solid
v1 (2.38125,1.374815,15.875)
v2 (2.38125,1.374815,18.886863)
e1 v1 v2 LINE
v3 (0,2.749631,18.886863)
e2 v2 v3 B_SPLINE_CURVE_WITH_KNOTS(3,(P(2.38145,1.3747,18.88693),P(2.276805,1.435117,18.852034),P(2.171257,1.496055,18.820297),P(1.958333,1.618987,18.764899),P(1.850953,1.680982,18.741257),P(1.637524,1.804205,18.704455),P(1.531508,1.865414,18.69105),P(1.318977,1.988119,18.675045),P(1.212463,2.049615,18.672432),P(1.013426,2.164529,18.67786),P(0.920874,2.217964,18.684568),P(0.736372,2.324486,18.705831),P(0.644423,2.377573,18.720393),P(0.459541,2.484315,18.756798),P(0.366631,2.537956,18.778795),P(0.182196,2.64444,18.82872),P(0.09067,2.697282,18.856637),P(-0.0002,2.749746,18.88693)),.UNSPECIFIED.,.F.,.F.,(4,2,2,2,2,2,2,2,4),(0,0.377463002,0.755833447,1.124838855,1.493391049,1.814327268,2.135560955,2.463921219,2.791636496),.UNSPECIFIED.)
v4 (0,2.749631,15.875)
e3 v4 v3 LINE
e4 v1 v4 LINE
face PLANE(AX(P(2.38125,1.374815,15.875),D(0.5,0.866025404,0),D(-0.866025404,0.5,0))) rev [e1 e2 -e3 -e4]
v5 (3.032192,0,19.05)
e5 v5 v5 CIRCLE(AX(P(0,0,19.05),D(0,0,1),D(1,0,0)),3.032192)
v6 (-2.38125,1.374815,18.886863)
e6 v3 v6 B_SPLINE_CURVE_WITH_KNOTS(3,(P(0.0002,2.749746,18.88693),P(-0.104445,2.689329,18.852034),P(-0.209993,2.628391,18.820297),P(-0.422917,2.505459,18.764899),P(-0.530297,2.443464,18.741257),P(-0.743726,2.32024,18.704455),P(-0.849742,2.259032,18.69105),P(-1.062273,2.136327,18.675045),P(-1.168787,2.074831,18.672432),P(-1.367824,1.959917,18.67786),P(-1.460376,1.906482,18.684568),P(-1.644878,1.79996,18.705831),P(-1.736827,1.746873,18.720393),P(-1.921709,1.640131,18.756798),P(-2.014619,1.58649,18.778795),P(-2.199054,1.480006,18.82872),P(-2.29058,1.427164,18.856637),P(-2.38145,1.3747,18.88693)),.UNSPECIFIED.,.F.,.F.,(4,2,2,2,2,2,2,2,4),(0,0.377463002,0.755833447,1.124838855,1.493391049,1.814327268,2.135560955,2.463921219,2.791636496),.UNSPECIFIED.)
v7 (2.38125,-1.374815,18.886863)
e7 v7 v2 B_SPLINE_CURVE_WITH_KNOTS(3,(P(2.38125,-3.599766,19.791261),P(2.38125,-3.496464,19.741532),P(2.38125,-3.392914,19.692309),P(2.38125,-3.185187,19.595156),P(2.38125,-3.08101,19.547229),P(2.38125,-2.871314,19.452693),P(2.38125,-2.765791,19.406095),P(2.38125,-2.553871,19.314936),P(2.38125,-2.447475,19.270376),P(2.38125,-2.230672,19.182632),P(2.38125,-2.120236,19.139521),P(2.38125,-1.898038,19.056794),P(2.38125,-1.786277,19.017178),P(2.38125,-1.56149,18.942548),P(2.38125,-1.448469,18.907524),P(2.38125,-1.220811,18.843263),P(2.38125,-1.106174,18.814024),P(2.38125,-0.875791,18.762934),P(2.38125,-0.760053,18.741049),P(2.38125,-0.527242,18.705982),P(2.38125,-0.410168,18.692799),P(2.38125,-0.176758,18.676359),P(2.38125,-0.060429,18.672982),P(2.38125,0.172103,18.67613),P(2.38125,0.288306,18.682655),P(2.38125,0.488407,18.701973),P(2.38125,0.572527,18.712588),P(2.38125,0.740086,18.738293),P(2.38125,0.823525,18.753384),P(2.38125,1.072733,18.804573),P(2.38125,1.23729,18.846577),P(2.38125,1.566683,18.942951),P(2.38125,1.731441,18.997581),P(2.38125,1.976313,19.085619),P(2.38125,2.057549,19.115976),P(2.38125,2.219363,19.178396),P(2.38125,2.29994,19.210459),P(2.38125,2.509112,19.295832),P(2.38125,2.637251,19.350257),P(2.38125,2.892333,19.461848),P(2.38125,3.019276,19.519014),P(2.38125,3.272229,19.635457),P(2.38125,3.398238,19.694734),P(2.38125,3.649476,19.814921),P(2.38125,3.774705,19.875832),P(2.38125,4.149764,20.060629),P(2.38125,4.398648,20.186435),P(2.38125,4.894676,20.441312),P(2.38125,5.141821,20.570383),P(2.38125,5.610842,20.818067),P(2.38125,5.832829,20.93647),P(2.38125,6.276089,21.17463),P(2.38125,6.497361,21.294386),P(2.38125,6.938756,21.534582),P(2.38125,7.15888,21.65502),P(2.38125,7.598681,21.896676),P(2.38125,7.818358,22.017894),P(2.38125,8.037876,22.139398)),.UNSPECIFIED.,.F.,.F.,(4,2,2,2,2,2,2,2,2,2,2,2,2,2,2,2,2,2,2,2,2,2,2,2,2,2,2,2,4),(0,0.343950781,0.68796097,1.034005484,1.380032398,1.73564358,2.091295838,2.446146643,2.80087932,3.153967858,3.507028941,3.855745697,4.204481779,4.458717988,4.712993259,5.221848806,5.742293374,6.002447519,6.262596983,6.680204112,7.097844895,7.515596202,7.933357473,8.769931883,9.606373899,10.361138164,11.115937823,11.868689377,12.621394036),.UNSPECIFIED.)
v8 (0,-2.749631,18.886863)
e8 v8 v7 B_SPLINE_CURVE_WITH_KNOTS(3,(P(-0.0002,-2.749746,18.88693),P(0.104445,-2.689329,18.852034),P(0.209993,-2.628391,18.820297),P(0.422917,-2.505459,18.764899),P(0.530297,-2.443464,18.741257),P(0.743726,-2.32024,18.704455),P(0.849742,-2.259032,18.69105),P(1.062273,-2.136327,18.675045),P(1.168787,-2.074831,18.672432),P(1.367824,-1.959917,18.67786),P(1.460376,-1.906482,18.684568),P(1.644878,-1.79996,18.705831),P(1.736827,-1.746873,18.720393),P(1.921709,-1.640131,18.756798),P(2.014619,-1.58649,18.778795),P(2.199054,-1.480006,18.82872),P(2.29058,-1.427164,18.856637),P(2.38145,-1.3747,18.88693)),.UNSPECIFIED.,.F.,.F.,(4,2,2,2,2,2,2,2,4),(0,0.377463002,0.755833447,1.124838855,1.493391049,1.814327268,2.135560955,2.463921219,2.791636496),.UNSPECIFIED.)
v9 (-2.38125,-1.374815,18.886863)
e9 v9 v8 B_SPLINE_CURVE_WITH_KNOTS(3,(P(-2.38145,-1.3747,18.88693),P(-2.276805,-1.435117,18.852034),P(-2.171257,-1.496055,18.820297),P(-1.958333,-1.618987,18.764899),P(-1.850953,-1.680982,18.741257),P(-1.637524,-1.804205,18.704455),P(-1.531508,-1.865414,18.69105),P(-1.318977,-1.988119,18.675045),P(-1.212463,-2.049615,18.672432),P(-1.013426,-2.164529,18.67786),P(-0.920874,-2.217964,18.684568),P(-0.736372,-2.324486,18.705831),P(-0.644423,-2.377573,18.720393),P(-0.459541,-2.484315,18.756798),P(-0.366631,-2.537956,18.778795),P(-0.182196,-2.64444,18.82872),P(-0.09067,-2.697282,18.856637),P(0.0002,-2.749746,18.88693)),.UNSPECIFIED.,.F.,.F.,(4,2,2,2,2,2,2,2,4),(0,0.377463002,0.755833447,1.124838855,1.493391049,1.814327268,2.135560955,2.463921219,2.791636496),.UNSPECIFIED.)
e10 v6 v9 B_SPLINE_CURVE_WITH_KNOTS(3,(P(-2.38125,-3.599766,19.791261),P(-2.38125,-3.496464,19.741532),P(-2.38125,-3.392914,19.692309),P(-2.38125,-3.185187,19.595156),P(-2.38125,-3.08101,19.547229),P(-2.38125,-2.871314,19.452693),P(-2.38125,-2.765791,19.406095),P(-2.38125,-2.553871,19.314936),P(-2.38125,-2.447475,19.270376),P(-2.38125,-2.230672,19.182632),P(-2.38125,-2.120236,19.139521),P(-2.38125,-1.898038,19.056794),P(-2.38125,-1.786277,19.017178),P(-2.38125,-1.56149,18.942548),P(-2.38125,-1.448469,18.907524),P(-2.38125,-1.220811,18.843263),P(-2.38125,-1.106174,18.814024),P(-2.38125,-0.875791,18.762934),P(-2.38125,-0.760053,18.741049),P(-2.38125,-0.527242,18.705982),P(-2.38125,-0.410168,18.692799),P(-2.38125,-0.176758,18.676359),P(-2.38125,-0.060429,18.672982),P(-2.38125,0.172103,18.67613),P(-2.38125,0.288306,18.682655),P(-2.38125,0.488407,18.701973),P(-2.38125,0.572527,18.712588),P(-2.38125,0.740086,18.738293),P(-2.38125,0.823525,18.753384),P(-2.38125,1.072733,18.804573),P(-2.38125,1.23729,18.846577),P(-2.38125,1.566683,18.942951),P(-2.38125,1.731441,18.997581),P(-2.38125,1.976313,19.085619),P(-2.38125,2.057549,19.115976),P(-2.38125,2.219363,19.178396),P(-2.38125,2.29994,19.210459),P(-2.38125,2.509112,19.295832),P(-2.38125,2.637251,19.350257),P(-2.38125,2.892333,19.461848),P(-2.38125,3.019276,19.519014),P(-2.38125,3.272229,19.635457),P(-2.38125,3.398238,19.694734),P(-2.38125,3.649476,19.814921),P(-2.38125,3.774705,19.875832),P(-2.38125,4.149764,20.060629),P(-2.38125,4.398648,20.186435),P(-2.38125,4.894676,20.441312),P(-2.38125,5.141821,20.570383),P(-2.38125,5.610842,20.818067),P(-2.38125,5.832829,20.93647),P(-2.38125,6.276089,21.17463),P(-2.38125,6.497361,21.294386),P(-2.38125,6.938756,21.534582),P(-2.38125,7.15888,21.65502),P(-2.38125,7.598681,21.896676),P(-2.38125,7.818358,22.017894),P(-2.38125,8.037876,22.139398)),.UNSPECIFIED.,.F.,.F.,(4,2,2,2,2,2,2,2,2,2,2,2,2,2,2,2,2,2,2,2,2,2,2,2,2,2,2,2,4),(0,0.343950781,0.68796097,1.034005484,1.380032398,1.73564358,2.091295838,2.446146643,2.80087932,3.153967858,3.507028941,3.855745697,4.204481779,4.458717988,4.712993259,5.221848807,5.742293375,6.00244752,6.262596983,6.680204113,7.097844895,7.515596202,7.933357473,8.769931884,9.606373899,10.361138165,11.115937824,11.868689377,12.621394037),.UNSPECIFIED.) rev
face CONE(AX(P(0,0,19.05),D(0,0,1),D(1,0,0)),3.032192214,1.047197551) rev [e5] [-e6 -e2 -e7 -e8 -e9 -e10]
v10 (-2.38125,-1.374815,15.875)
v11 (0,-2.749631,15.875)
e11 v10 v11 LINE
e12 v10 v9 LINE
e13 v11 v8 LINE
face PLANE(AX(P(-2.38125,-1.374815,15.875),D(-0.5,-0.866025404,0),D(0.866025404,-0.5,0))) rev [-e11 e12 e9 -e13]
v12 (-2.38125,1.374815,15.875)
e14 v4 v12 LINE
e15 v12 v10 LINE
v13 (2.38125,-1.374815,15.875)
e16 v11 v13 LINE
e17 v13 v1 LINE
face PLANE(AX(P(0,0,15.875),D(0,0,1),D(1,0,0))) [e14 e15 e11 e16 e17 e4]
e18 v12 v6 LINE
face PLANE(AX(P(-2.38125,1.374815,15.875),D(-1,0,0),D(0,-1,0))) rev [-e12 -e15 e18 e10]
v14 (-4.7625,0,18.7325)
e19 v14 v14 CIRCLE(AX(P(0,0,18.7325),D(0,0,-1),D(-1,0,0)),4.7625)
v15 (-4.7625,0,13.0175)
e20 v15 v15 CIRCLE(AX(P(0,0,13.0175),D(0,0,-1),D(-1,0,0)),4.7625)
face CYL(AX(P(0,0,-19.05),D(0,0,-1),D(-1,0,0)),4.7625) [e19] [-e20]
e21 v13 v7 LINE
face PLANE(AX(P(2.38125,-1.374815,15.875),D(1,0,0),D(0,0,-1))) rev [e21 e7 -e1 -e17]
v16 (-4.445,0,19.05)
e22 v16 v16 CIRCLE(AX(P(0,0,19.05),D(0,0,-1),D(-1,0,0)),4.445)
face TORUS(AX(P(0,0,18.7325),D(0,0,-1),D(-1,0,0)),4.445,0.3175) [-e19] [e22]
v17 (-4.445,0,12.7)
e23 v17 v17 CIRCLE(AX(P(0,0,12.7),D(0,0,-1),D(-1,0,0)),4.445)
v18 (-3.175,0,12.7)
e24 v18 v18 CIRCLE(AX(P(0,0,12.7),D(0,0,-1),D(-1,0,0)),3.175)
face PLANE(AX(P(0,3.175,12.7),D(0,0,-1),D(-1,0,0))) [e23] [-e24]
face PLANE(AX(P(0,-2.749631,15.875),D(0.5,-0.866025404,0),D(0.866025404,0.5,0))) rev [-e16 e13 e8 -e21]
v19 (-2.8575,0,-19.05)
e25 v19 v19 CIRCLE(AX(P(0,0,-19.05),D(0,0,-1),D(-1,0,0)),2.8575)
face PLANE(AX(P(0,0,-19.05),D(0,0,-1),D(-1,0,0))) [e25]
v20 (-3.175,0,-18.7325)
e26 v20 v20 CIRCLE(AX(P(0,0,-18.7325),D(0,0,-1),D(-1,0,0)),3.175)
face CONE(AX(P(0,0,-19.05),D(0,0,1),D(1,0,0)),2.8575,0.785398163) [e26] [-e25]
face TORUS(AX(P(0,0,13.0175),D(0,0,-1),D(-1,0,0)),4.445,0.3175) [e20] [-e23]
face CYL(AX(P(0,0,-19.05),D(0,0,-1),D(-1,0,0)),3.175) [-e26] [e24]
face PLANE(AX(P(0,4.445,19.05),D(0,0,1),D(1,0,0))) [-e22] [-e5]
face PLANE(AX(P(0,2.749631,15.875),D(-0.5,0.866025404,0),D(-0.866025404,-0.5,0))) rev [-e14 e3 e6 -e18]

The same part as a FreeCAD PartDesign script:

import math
import FreeCAD as App
import Part
import Sketcher
Q = App.Units.Quantity

doc = App.newDocument("Part")
body = doc.addObject("PartDesign::Body", "Body")

# Sketch on YZ plane
sketch1 = doc.addObject("Sketcher::SketchObject", "Sketch")
body.addObject(sketch1)
sketch1.AttachmentSupport = (doc.YZ_Plane, [""])
sketch1.MapMode = "FlatFace"
sketch1.addGeometry([
    Part.LineSegment(App.Vector(0, -19.05, 0), App.Vector(2.8575, -19.05, 0)),  # 0
    Part.LineSegment(App.Vector(2.8575, -19.05, 0), App.Vector(3.175, -18.7325, 0)),  # 1
    Part.LineSegment(App.Vector(3.175, -18.7325, 0), App.Vector(3.175, 12.7, 0)),  # 2
    Part.LineSegment(App.Vector(3.175, 12.7, 0), App.Vector(4.445, 12.7, 0)),  # 3
    Part.ArcOfCircle(Part.Circle(App.Vector(4.445, 13.0175, 0), App.Vector(0, 0, 1), 0.3175), math.radians(-90), math.radians(0)),  # 4
    Part.LineSegment(App.Vector(4.7625, 13.0175, 0), App.Vector(4.7625, 18.7325, 0)),  # 5
    Part.ArcOfCircle(Part.Circle(App.Vector(4.445, 18.7325, 0), App.Vector(0, 0, 1), 0.3175), math.radians(0), math.radians(90)),  # 6
    Part.LineSegment(App.Vector(4.445, 19.05, 0), App.Vector(0, 19.05, 0)),  # 7
    Part.LineSegment(App.Vector(0, 19.05, 0), App.Vector(0, -19.05, 0)),  # 8
], False)
sketch1.addConstraint([
    Sketcher.Constraint("Coincident", 0, 2, 1, 1),
    Sketcher.Constraint("Coincident", 1, 2, 2, 1),
    Sketcher.Constraint("Coincident", 2, 2, 3, 1),
    Sketcher.Constraint("Tangent", 3, 2, 4, 1),
    Sketcher.Constraint("Tangent", 4, 2, 5, 1),
    Sketcher.Constraint("Tangent", 5, 2, 6, 1),
    Sketcher.Constraint("Tangent", 6, 2, 7, 1),
    Sketcher.Constraint("Coincident", 7, 2, 8, 1),
    Sketcher.Constraint("Coincident", 8, 2, 0, 1),
    Sketcher.Constraint("Horizontal", 0),
    Sketcher.Constraint("Vertical", 2),
    Sketcher.Constraint("Horizontal", 3),
    Sketcher.Constraint("Vertical", 5),
    Sketcher.Constraint("Horizontal", 7),
    Sketcher.Constraint("Vertical", 8),
    Sketcher.Constraint("Equal", 4, 6),
    Sketcher.Constraint("Symmetric", 7, 2, 8, 2, -1, 1),
    Sketcher.Constraint("DistanceY", 8, 2, 8, 1, Q("1.5 in")),
    Sketcher.Constraint("Angle", 1, Q("45 deg")),
    Sketcher.Constraint("DistanceX", 3, 1, 3, 2, Q("0.05 in")),
    Sketcher.Constraint("DistanceY", -1, 1, 2, 2, Q("0.5 in")),
    Sketcher.Constraint("Radius", 4, Q("0.0125 in")),
    Sketcher.Constraint("DistanceX", 7, 2, 7, 1, Q("0.175 in")),
    Sketcher.Constraint("DistanceY", 1, 2, 4, 3, Q("1.25 in")),
])
revolution = doc.addObject("PartDesign::Revolution", "Revolution")
body.addObject(revolution)
revolution.Profile = sketch1
revolution.ReferenceAxis = (sketch1, ["V_Axis"])
revolution.Angle = 360

# Sketch on XY plane
sketch2 = doc.addObject("Sketcher::SketchObject", "Sketch001")
body.addObject(sketch2)
sketch2.AttachmentSupport = (doc.XY_Plane, [""])
sketch2.MapMode = "FlatFace"
sketch2.AttachmentOffset = App.Placement(App.Vector(0, 0, 0.75 * 25.4), App.Rotation())
sketch2.addGeometry([
    Part.LineSegment(App.Vector(-2.38125, 1.374815, 0), App.Vector(-2.38125, -1.374815, 0)),  # 0
    Part.LineSegment(App.Vector(-2.38125, -1.374815, 0), App.Vector(0, -2.749631, 0)),  # 1
    Part.LineSegment(App.Vector(0, -2.749631, 0), App.Vector(2.38125, -1.374815, 0)),  # 2
    Part.LineSegment(App.Vector(2.38125, -1.374815, 0), App.Vector(2.38125, 1.374815, 0)),  # 3
    Part.LineSegment(App.Vector(2.38125, 1.374815, 0), App.Vector(0, 2.749631, 0)),  # 4
    Part.LineSegment(App.Vector(0, 2.749631, 0), App.Vector(-2.38125, 1.374815, 0)),  # 5
], False)
sketch2.addConstraint([
    Sketcher.Constraint("Coincident", 0, 2, 1, 1),
    Sketcher.Constraint("Coincident", 1, 2, 2, 1),
    Sketcher.Constraint("Coincident", 2, 2, 3, 1),
    Sketcher.Constraint("Coincident", 3, 2, 4, 1),
    Sketcher.Constraint("Coincident", 4, 2, 5, 1),
    Sketcher.Constraint("Coincident", 5, 2, 0, 1),
    Sketcher.Constraint("Vertical", 0),
    Sketcher.Constraint("Vertical", 3),
    Sketcher.Constraint("Symmetric", 0, 2, 3, 2, -1, 1),
    Sketcher.Constraint("Symmetric", 1, 2, 4, 2, -1, 1),
    Sketcher.Constraint("PointOnObject", 1, 2, -2),
    Sketcher.Constraint("Parallel", 2, 5),
    Sketcher.Constraint("Horizontal", 0, 2, 2, 2),
    Sketcher.Constraint("Angle", 1, Q("-30 deg")),
    Sketcher.Constraint("DistanceX", 0, 2, -1, 1, Q("0.09375 in")),
    Sketcher.Constraint("DistanceY", 0, 2, 0, 1, Q("2.749631 mm")),
])
pocket1 = doc.addObject("PartDesign::Pocket", "Pocket")
body.addObject(pocket1)
pocket1.Profile = sketch2
pocket1.Length = Q("0.125 in")

# Sketch on YZ plane
sketch3 = doc.addObject("Sketcher::SketchObject", "Sketch002")
body.addObject(sketch3)
sketch3.AttachmentSupport = (doc.YZ_Plane, [""])
sketch3.MapMode = "FlatFace"
sketch3.addGeometry([
    Part.LineSegment(App.Vector(0, 19.05, 0), App.Vector(-3.032192, 19.05, 0)),
    Part.LineSegment(App.Vector(-3.032192, 19.05, 0), App.Vector(0, 17.299363, 0)),
    Part.LineSegment(App.Vector(0, 17.299363, 0), App.Vector(0, 19.05, 0)),
], False)
sketch3.addConstraint([
    Sketcher.Constraint("Coincident", 0, 2, 1, 1),
    Sketcher.Constraint("Coincident", 1, 2, 2, 1),
    Sketcher.Constraint("Coincident", 2, 2, 0, 1),
    Sketcher.Constraint("Horizontal", 0),
    Sketcher.Constraint("Vertical", 2),
    Sketcher.Constraint("PointOnObject", 1, 2, -2),
    Sketcher.Constraint("Angle", 1, Q("-30 deg")),
    Sketcher.Constraint("DistanceY", -1, 1, 0, 2, Q("0.75 in")),
    Sketcher.Constraint("DistanceX", 0, 2, 0, 1, Q("3.032192 mm")),
])
groove = doc.addObject("PartDesign::Groove", "Groove")
body.addObject(groove)
groove.Profile = sketch3
groove.ReferenceAxis = (sketch3, ["V_Axis"])
groove.Angle = 360

doc.recompute()
